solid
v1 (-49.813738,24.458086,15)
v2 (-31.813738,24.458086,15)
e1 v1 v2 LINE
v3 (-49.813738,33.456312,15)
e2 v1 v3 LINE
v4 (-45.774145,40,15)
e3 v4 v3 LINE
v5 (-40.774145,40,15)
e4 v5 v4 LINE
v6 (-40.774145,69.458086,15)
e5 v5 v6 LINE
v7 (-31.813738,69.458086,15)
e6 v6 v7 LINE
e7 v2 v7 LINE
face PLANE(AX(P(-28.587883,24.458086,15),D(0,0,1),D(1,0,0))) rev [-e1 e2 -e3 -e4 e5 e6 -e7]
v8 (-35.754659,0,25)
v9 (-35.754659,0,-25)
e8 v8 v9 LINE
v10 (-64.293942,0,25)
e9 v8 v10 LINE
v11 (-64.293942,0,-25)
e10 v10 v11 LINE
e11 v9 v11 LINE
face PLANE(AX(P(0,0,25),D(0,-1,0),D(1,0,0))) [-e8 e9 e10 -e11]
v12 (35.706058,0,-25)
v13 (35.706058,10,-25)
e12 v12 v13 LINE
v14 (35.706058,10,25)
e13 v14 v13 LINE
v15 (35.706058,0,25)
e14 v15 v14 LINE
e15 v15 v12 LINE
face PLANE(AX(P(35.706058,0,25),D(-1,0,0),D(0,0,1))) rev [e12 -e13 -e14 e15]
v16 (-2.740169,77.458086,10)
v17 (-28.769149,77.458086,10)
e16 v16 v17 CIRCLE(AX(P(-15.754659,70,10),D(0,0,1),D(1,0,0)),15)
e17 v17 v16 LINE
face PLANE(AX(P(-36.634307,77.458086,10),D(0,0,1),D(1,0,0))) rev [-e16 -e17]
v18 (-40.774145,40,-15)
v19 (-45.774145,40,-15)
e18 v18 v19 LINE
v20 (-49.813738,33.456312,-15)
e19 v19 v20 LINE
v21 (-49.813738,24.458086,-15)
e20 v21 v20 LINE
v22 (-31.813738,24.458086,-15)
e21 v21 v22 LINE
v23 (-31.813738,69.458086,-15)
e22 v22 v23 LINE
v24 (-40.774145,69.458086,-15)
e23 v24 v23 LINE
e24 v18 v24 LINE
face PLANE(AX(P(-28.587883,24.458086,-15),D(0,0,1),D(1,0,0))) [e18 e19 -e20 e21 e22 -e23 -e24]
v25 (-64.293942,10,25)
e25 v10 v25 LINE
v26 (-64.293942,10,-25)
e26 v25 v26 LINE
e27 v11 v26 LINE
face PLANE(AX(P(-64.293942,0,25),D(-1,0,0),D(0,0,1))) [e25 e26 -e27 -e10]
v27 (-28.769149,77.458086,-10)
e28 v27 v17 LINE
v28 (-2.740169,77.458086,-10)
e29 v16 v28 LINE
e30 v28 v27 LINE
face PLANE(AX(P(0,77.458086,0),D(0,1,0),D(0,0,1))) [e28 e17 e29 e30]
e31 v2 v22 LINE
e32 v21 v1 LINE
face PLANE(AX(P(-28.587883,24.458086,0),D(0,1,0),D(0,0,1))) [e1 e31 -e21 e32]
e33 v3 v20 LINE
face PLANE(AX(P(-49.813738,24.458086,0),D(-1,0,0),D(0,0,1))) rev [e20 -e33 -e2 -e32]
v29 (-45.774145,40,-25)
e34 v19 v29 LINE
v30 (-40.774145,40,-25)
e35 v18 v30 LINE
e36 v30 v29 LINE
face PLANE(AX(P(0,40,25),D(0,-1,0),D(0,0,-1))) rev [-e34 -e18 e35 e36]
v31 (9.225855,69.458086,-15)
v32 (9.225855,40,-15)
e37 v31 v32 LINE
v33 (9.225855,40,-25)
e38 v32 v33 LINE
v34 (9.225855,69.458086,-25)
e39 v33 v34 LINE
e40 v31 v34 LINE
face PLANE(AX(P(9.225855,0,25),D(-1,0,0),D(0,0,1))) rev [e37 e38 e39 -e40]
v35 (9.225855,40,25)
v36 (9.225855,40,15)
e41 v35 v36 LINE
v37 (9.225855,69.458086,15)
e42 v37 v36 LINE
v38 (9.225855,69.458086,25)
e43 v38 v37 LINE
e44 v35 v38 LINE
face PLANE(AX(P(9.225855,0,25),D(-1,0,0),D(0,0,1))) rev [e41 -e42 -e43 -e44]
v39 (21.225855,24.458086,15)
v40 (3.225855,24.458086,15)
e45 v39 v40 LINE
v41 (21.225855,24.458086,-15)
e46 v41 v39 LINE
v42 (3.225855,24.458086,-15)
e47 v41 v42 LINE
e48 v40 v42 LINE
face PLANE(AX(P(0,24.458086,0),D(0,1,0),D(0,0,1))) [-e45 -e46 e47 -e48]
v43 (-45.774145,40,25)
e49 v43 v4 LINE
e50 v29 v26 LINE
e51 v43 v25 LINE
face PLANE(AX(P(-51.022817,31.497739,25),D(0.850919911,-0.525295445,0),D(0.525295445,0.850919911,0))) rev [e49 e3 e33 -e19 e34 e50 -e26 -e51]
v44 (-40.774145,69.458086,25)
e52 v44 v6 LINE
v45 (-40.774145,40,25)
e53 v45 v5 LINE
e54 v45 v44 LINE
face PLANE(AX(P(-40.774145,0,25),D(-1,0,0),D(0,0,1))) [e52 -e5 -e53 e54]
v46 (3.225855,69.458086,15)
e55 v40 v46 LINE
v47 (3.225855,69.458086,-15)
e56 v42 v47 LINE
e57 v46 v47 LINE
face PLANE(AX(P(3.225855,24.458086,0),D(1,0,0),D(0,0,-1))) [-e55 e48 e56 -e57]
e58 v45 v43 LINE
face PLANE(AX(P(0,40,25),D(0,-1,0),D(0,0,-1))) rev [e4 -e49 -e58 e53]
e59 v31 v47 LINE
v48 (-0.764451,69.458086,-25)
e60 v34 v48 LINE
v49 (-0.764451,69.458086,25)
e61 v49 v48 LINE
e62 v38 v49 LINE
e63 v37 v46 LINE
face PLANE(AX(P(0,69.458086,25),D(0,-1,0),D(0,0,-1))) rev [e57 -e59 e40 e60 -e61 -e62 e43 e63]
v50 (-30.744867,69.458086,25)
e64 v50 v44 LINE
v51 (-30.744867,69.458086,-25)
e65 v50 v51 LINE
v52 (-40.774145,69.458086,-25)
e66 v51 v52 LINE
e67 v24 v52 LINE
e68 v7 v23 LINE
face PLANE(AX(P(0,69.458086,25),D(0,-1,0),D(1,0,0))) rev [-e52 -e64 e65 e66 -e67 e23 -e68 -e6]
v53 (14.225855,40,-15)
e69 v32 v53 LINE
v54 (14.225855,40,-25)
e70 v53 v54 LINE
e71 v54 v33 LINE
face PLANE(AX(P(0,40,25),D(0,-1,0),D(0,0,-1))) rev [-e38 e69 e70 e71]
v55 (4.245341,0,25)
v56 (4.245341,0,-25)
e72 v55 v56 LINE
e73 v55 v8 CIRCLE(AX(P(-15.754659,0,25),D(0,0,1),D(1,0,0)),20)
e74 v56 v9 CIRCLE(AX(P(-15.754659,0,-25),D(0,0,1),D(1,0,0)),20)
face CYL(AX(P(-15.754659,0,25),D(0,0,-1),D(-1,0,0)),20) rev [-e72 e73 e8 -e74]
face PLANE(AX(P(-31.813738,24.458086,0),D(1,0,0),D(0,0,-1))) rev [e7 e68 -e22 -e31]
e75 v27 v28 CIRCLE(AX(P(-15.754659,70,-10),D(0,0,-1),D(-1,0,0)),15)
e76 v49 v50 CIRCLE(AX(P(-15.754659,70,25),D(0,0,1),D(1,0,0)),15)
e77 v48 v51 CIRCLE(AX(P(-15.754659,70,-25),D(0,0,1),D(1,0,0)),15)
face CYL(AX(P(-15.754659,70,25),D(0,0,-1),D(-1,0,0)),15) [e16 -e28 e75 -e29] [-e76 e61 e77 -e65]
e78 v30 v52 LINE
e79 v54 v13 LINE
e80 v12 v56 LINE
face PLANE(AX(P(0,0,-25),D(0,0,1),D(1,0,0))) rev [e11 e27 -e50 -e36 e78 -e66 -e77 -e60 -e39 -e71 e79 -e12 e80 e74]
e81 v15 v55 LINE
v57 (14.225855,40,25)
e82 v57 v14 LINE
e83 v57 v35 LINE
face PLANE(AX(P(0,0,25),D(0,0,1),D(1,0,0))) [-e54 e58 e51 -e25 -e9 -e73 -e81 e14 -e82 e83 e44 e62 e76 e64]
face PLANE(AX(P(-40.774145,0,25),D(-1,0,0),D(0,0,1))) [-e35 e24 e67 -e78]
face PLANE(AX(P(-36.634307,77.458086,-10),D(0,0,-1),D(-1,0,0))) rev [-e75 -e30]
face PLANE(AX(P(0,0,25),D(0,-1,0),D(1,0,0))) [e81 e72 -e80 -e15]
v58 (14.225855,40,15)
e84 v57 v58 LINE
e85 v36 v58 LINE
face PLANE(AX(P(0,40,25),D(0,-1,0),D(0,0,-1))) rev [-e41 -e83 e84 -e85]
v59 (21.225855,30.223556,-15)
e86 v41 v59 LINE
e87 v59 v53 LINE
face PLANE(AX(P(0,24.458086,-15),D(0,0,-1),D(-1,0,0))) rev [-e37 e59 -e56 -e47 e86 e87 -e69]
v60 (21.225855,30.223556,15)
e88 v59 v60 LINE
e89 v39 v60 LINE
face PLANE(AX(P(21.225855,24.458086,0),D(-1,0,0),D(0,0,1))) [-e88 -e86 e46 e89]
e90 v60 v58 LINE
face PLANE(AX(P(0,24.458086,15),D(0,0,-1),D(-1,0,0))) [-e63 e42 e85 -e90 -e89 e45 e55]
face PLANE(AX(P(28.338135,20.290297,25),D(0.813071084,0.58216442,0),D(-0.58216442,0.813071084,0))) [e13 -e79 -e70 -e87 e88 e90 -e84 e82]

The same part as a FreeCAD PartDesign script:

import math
import FreeCAD as App
import Part
import Sketcher
from FreeCAD import Vector
Q = App.Units.Quantity


def add_polygon(sketch, points):
    """Adds a closed chain of lines whose ends are joined by coincident constraints."""
    first, n = sketch.GeometryCount, len(points)
    for a, b in zip(points, points[1:] + points[:1]):
        sketch.addGeometry(Part.LineSegment(App.Vector(*a, 0), App.Vector(*b, 0)), False)
    for i in range(n):
        sketch.addConstraint(Sketcher.Constraint("Coincident", first + i, 2, first + (i + 1) % n, 1))

doc = App.newDocument("Part")
body = doc.addObject("PartDesign::Body", "Body")

sketch1 = body.newObject("Sketcher::SketchObject", "Sketch")
sketch1.AttachmentSupport = (doc.getObject("XY_Plane"), [""])
sketch1.MapMode = "FlatFace"
sketch1.addGeometry([
    Part.LineSegment(Vector(9, 69, 0), Vector(-1, 69, 0)),
    Part.ArcOfCircle(Part.Circle(Vector(-16, 70, 0), Vector(0, 0, 1), 15), math.radians(-2), math.radians(182)),
    Part.LineSegment(Vector(-31, 69, 0), Vector(-41, 69, 0)),
    Part.LineSegment(Vector(-41, 69, 0), Vector(-41, 40, 0)),
    Part.LineSegment(Vector(-41, 40, 0), Vector(-46, 40, 0)),
    Part.LineSegment(Vector(-46, 40, 0), Vector(-64, 10, 0)),
    Part.LineSegment(Vector(-64, 10, 0), Vector(-64, 0, 0)),
    Part.LineSegment(Vector(-64, 0, 0), Vector(-36, 0, 0)),
    Part.ArcOfCircle(Part.Circle(Vector(-16, 0, 0), Vector(0, 0, 1), 20), math.radians(0), math.radians(180)),
    Part.LineSegment(Vector(4, 0, 0), Vector(36, 0, 0)),
    Part.LineSegment(Vector(36, 0, 0), Vector(36, 10, 0)),
    Part.LineSegment(Vector(36, 10, 0), Vector(14, 40, 0)),
    Part.LineSegment(Vector(14, 40, 0), Vector(9, 40, 0)),
    Part.LineSegment(Vector(9, 40, 0), Vector(9, 69, 0)),
], False)
sketch1.addConstraint([
    Sketcher.Constraint("Coincident", 0, 2, 1, 1),
    Sketcher.Constraint("Coincident", 1, 2, 2, 1),
    Sketcher.Constraint("Coincident", 2, 2, 3, 1),
    Sketcher.Constraint("Coincident", 3, 2, 4, 1),
    Sketcher.Constraint("Coincident", 4, 2, 5, 1),
    Sketcher.Constraint("Coincident", 5, 2, 6, 1),
    Sketcher.Constraint("Coincident", 6, 2, 7, 1),
    Sketcher.Constraint("Coincident", 7, 2, 8, 2),
    Sketcher.Constraint("Coincident", 8, 1, 9, 1),
    Sketcher.Constraint("Coincident", 9, 2, 10, 1),
    Sketcher.Constraint("Coincident", 10, 2, 11, 1),
    Sketcher.Constraint("Coincident", 11, 2, 12, 1),
    Sketcher.Constraint("Coincident", 12, 2, 13, 1),
    Sketcher.Constraint("Coincident", 13, 2, 0, 1),
    Sketcher.Constraint("Horizontal", 0),
    Sketcher.Constraint("Horizontal", 2),
    Sketcher.Constraint("Vertical", 3),
    Sketcher.Constraint("Horizontal", 4),
    Sketcher.Constraint("Vertical", 6),
    Sketcher.Constraint("Horizontal", 7),
    Sketcher.Constraint("Horizontal", 9),
    Sketcher.Constraint("Vertical", 10),
    Sketcher.Constraint("Horizontal", 12),
    Sketcher.Constraint("Vertical", 13),
    Sketcher.Constraint("PointOnObject", 8, 3, -1),
    Sketcher.Constraint("PointOnObject", 6, 2, -1),
    Sketcher.Constraint("PointOnObject", 8, 1, -1),
    Sketcher.Constraint("Horizontal", 0, 2, 1, 2),
    Sketcher.Constraint("Horizontal", 5, 2, 10, 2),
    Sketcher.Constraint("Horizontal", 4, 2, 11, 2),
    Sketcher.Constraint("Vertical", 1, 3, 8, 3),
    Sketcher.Constraint("Equal", 4, 12),
    Sketcher.Constraint("Radius", 1, Q("15 mm")),
    Sketcher.Constraint("Radius", 8, Q("20 mm")),
    Sketcher.Constraint("DistanceX", 4, 2, 4, 1, Q("5 mm")),
    Sketcher.Constraint("DistanceY", 6, 2, 6, 1, Q("10 mm")),
    Sketcher.Constraint("DistanceY", -1, 1, 1, 3, Q("70 mm")),
    Sketcher.Constraint("DistanceY", -1, 1, 3, 2, Q("40 mm")),
    Sketcher.Constraint("DistanceX", 2, 2, 2, 1, Q("10.029279 mm")),
    Sketcher.Constraint("Distance", 5, Q("35.255962 mm")),
    Sketcher.Constraint("DistanceX", 0, 2, 0, 1, Q("9.990306 mm")),
    Sketcher.Constraint("DistanceX", 7, 1, 7, 2, Q("28.539283 mm")),
    Sketcher.Constraint("DistanceX", 9, 1, 9, 2, Q("31.460717 mm")),
    Sketcher.Constraint("DistanceX", 1, 3, -1, 1, Q("15.754659 mm")),
])
pad1 = body.newObject("PartDesign::Pad", "Pad")
pad1.Profile = sketch1
pad1.Length = 50
pad1.Midplane = True

sketch2 = body.newObject("Sketcher::SketchObject", "Sketch001")
sketch2.AttachmentSupport = (doc.getObject("XZ_Plane"), [""])
sketch2.MapMode = "FlatFace"
sketch2.AttachmentOffset = App.Placement(Vector(0, 0, -69.458086), App.Rotation())
add_polygon(sketch2, [(3, -15), (3, 15), (21, 15), (21, -15)])
sketch2.addConstraint([
    Sketcher.Constraint("Vertical", 0),
    Sketcher.Constraint("Horizontal", 1),
    Sketcher.Constraint("Vertical", 2),
    Sketcher.Constraint("Horizontal", 3),
    Sketcher.Constraint("DistanceX", 1, 1, 1, 2, Q("18 mm")),
    Sketcher.Constraint("DistanceY", 0, 1, 0, 2, Q("30 mm")),
    Sketcher.Constraint("DistanceY", -1, 1, 0, 2, Q("15 mm")),
    Sketcher.Constraint("DistanceX", -1, 1, 0, 2, Q("3.225855 mm")),
])
pocket1 = body.newObject("PartDesign::Pocket", "Pocket")
pocket1.Profile = sketch2
pocket1.Length = 45
pocket1.Reversed = True
doc.recompute()

datumplane = body.newObject("PartDesign::Plane", "DatumPlane")
datumplane.AttachmentSupport = (doc.getObject("YZ_Plane"), [""])
datumplane.MapMode = "FlatFace"
datumplane.AttachmentOffset = App.Placement(Vector(0, 0, -14.293942), App.Rotation())
mirrored = body.newObject("PartDesign::Mirrored", "Mirrored")
mirrored.Originals = [pocket1]
mirrored.MirrorPlane = (datumplane, [""])
body.Tip = mirrored

sketch3 = body.newObject("Sketcher::SketchObject", "Sketch002")
sketch3.AttachmentSupport = (doc.getObject("XZ_Plane"), [""])
sketch3.MapMode = "FlatFace"
sketch3.AttachmentOffset = App.Placement(Vector(0, 0, -84.458086), App.Rotation())
add_polygon(sketch3, [(-37, -10), (-37, 10), (5, 10), (5, -10)])
sketch3.addConstraint([
    Sketcher.Constraint("Vertical", 0),
    Sketcher.Constraint("Horizontal", 1),
    Sketcher.Constraint("Vertical", 2),
    Sketcher.Constraint("Horizontal", 3),
    Sketcher.Constraint("DistanceY", 0, 1, 0, 2, Q("20 mm")),
    Sketcher.Constraint("DistanceY", -1, 1, 0, 2, Q("10 mm")),
    Sketcher.Constraint("DistanceX", 1, 1, 1, 2, Q("41.759295 mm")),
    Sketcher.Constraint("DistanceX", -1, 1, 1, 2, Q("5.124988 mm")),
])
pocket2 = body.newObject("PartDesign::Pocket", "Pocket001")
pocket2.Profile = sketch3
pocket2.Length = 14
pocket2.Midplane = True

doc.recompute()
